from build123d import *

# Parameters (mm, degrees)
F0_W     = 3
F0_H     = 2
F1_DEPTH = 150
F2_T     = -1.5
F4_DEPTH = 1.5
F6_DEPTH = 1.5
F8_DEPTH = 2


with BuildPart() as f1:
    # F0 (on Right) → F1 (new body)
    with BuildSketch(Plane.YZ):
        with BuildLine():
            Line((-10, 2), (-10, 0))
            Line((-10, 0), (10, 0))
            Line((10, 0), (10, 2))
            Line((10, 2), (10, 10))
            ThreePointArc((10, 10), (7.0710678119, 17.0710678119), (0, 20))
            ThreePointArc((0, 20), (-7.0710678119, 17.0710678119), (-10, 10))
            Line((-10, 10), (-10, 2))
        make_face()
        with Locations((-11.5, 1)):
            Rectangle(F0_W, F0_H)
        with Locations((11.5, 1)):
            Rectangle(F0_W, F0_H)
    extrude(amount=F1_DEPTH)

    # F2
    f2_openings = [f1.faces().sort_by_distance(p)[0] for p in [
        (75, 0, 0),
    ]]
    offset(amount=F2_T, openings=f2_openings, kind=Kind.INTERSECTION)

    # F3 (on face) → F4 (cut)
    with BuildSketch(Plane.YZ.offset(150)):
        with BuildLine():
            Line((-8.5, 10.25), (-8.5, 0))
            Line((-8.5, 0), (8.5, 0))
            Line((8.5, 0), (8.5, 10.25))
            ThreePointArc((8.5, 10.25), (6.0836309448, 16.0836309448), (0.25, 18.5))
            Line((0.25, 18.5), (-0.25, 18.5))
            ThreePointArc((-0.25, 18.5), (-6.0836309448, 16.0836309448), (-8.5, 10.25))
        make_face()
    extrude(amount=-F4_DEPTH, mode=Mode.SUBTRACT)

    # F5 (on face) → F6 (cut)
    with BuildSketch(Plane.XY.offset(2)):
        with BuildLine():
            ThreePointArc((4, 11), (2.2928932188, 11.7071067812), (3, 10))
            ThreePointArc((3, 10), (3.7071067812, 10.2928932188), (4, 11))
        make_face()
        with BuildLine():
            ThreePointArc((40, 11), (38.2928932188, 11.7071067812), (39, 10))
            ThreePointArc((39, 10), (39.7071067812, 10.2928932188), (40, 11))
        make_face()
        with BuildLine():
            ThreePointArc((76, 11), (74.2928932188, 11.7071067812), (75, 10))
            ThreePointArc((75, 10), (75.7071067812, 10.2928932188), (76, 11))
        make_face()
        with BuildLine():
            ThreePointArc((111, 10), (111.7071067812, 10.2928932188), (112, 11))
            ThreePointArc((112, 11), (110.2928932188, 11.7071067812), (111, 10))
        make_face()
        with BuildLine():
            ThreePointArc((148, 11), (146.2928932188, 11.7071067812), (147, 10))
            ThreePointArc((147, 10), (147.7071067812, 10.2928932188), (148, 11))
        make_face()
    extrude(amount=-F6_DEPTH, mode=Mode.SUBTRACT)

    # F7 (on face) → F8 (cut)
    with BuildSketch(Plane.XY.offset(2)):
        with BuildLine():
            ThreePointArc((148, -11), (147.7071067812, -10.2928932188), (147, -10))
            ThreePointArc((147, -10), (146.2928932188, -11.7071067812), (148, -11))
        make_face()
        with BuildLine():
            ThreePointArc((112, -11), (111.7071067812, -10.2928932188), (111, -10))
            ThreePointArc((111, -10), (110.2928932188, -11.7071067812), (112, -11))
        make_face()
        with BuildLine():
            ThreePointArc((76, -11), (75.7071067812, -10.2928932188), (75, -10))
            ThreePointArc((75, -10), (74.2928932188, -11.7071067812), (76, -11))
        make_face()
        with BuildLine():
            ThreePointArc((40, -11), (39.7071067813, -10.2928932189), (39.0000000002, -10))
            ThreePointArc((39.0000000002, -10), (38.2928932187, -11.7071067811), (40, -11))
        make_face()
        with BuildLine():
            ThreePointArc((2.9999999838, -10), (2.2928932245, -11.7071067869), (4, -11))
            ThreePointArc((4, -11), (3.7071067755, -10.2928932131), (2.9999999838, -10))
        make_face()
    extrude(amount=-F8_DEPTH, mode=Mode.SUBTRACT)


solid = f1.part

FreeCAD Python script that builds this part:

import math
import FreeCAD as App
import Part
import Sketcher
from FreeCAD import Vector
Q = App.Units.Quantity


def faces_at(feature, points):
    """Names of the faces that lie closest to the given points."""
    faces = feature.Shape.Faces
    near = lambda p: min(range(len(faces)), key=lambda i: faces[i].distToShape(Part.Vertex(*p))[0])
    return sorted({f"Face{near(p) + 1}" for p in points})

doc = App.newDocument("Part")
body = doc.addObject("PartDesign::Body", "Body")

# Sketch on YZ plane
sketch1 = body.newObject("Sketcher::SketchObject", "Sketch")
sketch1.AttachmentSupport = (doc.getObject("YZ_Plane"), [""])
sketch1.MapMode = "FlatFace"
sketch1.addGeometry(Part.LineSegment(Vector(10, 2, 0), Vector(10, 10, 0)), False)
sketch1.addGeometry(Part.ArcOfCircle(Part.Circle(Vector(0, 10, 0), Vector(0, 0, 1), 10), math.radians(0), math.radians(90)), False)
sketch1.addGeometry(Part.ArcOfCircle(Part.Circle(Vector(0, 10, 0), Vector(0, 0, 1), 10), math.radians(90), math.radians(180)), False)
sketch1.addGeometry(Part.LineSegment(Vector(-10, 10, 0), Vector(-10, 2, 0)), False)
sketch1.addGeometry(Part.LineSegment(Vector(-10, 2, 0), Vector(-13, 2, 0)), False)
sketch1.addGeometry(Part.LineSegment(Vector(-13, 2, 0), Vector(-13, 0, 0)), False)
sketch1.addGeometry(Part.LineSegment(Vector(-13, 0, 0), Vector(13, 0, 0)), False)
sketch1.addGeometry(Part.LineSegment(Vector(13, 0, 0), Vector(13, 2, 0)), False)
sketch1.addGeometry(Part.LineSegment(Vector(13, 2, 0), Vector(10, 2, 0)), False)
sketch1.addConstraint(Sketcher.Constraint("Tangent", 0, 2, 1, 1))
sketch1.addConstraint(Sketcher.Constraint("Tangent", 1, 2, 2, 1))
sketch1.addConstraint(Sketcher.Constraint("Tangent", 2, 2, 3, 1))
sketch1.addConstraint(Sketcher.Constraint("Coincident", 3, 2, 4, 1))
sketch1.addConstraint(Sketcher.Constraint("Coincident", 4, 2, 5, 1))
sketch1.addConstraint(Sketcher.Constraint("Coincident", 5, 2, 6, 1))
sketch1.addConstraint(Sketcher.Constraint("Coincident", 6, 2, 7, 1))
sketch1.addConstraint(Sketcher.Constraint("Coincident", 7, 2, 8, 1))
sketch1.addConstraint(Sketcher.Constraint("Coincident", 8, 2, 0, 1))
sketch1.addConstraint(Sketcher.Constraint("Vertical", 0))
sketch1.addConstraint(Sketcher.Constraint("Vertical", 3))
sketch1.addConstraint(Sketcher.Constraint("Horizontal", 4))
sketch1.addConstraint(Sketcher.Constraint("Vertical", 5))
sketch1.addConstraint(Sketcher.Constraint("Horizontal", 6))
sketch1.addConstraint(Sketcher.Constraint("Vertical", 7))
sketch1.addConstraint(Sketcher.Constraint("Horizontal", 8))
sketch1.addConstraint(Sketcher.Constraint("Equal", 1, 2))
sketch1.addConstraint(Sketcher.Constraint("Symmetric", 5, 2, 6, 2, -1, 1))
sketch1.addConstraint(Sketcher.Constraint("Symmetric", 3, 2, 8, 2, -2))
sketch1.addConstraint(Sketcher.Constraint("PointOnObject", 1, 2, -2))
sketch1.addConstraint(Sketcher.Constraint("Radius", 1, Q("10 mm")))
sketch1.addConstraint(Sketcher.Constraint("DistanceX", 4, 2, 4, 1, Q("3 mm")))
sketch1.addConstraint(Sketcher.Constraint("DistanceY", 0, 1, 0, 2, Q("8 mm")))
sketch1.addConstraint(Sketcher.Constraint("DistanceY", 5, 2, 5, 1, Q("2 mm")))
pad1 = body.newObject("PartDesign::Pad", "Pad")
pad1.Profile = sketch1
pad1.Length = 150
doc.recompute()

thickness = body.newObject("PartDesign::Thickness", "Thickness")
thickness.Base = (pad1, faces_at(pad1, [(75, 0, 0)]))
thickness.Value = 1.5
thickness.Reversed = True
thickness.Join = "Intersection"

# Sketch on YZ plane
sketch2 = body.newObject("Sketcher::SketchObject", "Sketch001")
sketch2.AttachmentSupport = (doc.getObject("YZ_Plane"), [""])
sketch2.MapMode = "FlatFace"
sketch2.AttachmentOffset = App.Placement(Vector(0, 0, 150), App.Rotation())
sketch2.addGeometry(Part.LineSegment(Vector(-8.5, 10.25, 0), Vector(-8.5, 0, 0)), False)
sketch2.addGeometry(Part.LineSegment(Vector(-8.5, 0, 0), Vector(8.5, 0, 0)), False)
sketch2.addGeometry(Part.LineSegment(Vector(8.5, 0, 0), Vector(8.5, 10.25, 0)), False)
sketch2.addGeometry(Part.ArcOfCircle(Part.Circle(Vector(0.25, 10.25, 0), Vector(0, 0, 1), 8.25), math.radians(0), math.radians(90)), False)
sketch2.addGeometry(Part.LineSegment(Vector(0.25, 18.5, 0), Vector(-0.25, 18.5, 0)), False)
sketch2.addGeometry(Part.ArcOfCircle(Part.Circle(Vector(-0.25, 10.25, 0), Vector(0, 0, 1), 8.25), math.radians(90), math.radians(180)), False)
sketch2.addConstraint(Sketcher.Constraint("Coincident", 0, 2, 1, 1))
sketch2.addConstraint(Sketcher.Constraint("Coincident", 1, 2, 2, 1))
sketch2.addConstraint(Sketcher.Constraint("Tangent", 2, 2, 3, 1))
sketch2.addConstraint(Sketcher.Constraint("Tangent", 3, 2, 4, 1))
sketch2.addConstraint(Sketcher.Constraint("Tangent", 4, 2, 5, 1))
sketch2.addConstraint(Sketcher.Constraint("Tangent", 5, 2, 0, 1))
sketch2.addConstraint(Sketcher.Constraint("Vertical", 0))
sketch2.addConstraint(Sketcher.Constraint("Horizontal", 1))
sketch2.addConstraint(Sketcher.Constraint("Vertical", 2))
sketch2.addConstraint(Sketcher.Constraint("Horizontal", 4))
sketch2.addConstraint(Sketcher.Constraint("Equal", 3, 5))
sketch2.addConstraint(Sketcher.Constraint("Symmetric", 0, 2, 1, 2, -1, 1))
sketch2.addConstraint(Sketcher.Constraint("DistanceX", 1, 1, 1, 2, Q("17 mm")))
sketch2.addConstraint(Sketcher.Constraint("Radius", 3, Q("8.25 mm")))
sketch2.addConstraint(Sketcher.Constraint("DistanceY", 0, 2, 0, 1, Q("10.25 mm")))
pocket1 = body.newObject("PartDesign::Pocket", "Pocket")
pocket1.Profile = sketch2
pocket1.Length = 1.5

# Sketch on XY plane
sketch3 = body.newObject("Sketcher::SketchObject", "Sketch002")
sketch3.AttachmentSupport = (doc.getObject("XY_Plane"), [""])
sketch3.MapMode = "FlatFace"
sketch3.AttachmentOffset = App.Placement(Vector(0, 0, 2), App.Rotation())
sketch3.addGeometry(Part.ArcOfCircle(Part.Circle(Vector(3, 11, 0), Vector(0, 0, 1), 1), math.radians(0), math.radians(270)), False)
sketch3.addGeometry(Part.ArcOfCircle(Part.Circle(Vector(3, 11, 0), Vector(0, 0, 1), 1), math.radians(-90), math.radians(0)), False)
sketch3.addGeometry(Part.ArcOfCircle(Part.Circle(Vector(39, 11, 0), Vector(0, 0, 1), 1), math.radians(0), math.radians(270)), False)
sketch3.addGeometry(Part.ArcOfCircle(Part.Circle(Vector(39, 11, 0), Vector(0, 0, 1), 1), math.radians(-90), math.radians(0)), False)
sketch3.addGeometry(Part.ArcOfCircle(Part.Circle(Vector(75, 11, 0), Vector(0, 0, 1), 1), math.radians(0), math.radians(270)), False)
sketch3.addGeometry(Part.ArcOfCircle(Part.Circle(Vector(75, 11, 0), Vector(0, 0, 1), 1), math.radians(-90), math.radians(0)), False)
sketch3.addGeometry(Part.ArcOfCircle(Part.Circle(Vector(111, 11, 0), Vector(0, 0, 1), 1), math.radians(-90), math.radians(0)), False)
sketch3.addGeometry(Part.ArcOfCircle(Part.Circle(Vector(111, 11, 0), Vector(0, 0, 1), 1), math.radians(0), math.radians(270)), False)
sketch3.addGeometry(Part.ArcOfCircle(Part.Circle(Vector(147, 11, 0), Vector(0, 0, 1), 1), math.radians(0), math.radians(270)), False)
sketch3.addGeometry(Part.ArcOfCircle(Part.Circle(Vector(147, 11, 0), Vector(0, 0, 1), 1), math.radians(-90), math.radians(0)), False)
sketch3.addConstraint(Sketcher.Constraint("Tangent", 0, 1, 1, 2))
sketch3.addConstraint(Sketcher.Constraint("Coincident", 1, 1, 0, 2))
sketch3.addConstraint(Sketcher.Constraint("Tangent", 2, 1, 3, 2))
sketch3.addConstraint(Sketcher.Constraint("Coincident", 3, 1, 2, 2))
sketch3.addConstraint(Sketcher.Constraint("Tangent", 4, 1, 5, 2))
sketch3.addConstraint(Sketcher.Constraint("Coincident", 5, 1, 4, 2))
sketch3.addConstraint(Sketcher.Constraint("Tangent", 6, 1, 7, 2))
sketch3.addConstraint(Sketcher.Constraint("Coincident", 7, 1, 6, 2))
sketch3.addConstraint(Sketcher.Constraint("Tangent", 8, 1, 9, 2))
sketch3.addConstraint(Sketcher.Constraint("Coincident", 9, 1, 8, 2))
sketch3.addConstraint(Sketcher.Constraint("Equal", 1, 2))
sketch3.addConstraint(Sketcher.Constraint("Equal", 3, 4))
sketch3.addConstraint(Sketcher.Constraint("Equal", 5, 6))
sketch3.addConstraint(Sketcher.Constraint("Equal", 7, 8))
sketch3.addConstraint(Sketcher.Constraint("Horizontal", 1, 3, 2, 3))
sketch3.addConstraint(Sketcher.Constraint("Horizontal", 3, 3, 4, 3))
sketch3.addConstraint(Sketcher.Constraint("Horizontal", 5, 3, 6, 3))
sketch3.addConstraint(Sketcher.Constraint("Horizontal", 7, 3, 8, 3))
sketch3.addConstraint(Sketcher.Constraint("Horizontal", 9, 3, 0, 1))
sketch3.addConstraint(Sketcher.Constraint("Horizontal", 0, 1, 2, 1))
sketch3.addConstraint(Sketcher.Constraint("Horizontal", 2, 1, 4, 1))
sketch3.addConstraint(Sketcher.Constraint("Horizontal", 4, 1, 7, 1))
sketch3.addConstraint(Sketcher.Constraint("Horizontal", 7, 1, 8, 1))
sketch3.addConstraint(Sketcher.Constraint("Vertical", 0, 3, 1, 1))
sketch3.addConstraint(Sketcher.Constraint("Vertical", 2, 3, 3, 1))
sketch3.addConstraint(Sketcher.Constraint("Vertical", 4, 3, 5, 1))
sketch3.addConstraint(Sketcher.Constraint("Vertical", 7, 3, 6, 1))
sketch3.addConstraint(Sketcher.Constraint("Vertical", 8, 3, 9, 1))
sketch3.addConstraint(Sketcher.Constraint("Radius", 0, Q("1 mm")))
sketch3.addConstraint(Sketcher.Constraint("DistanceX", -1, 1, 0, 3, Q("3 mm")))
sketch3.addConstraint(Sketcher.Constraint("DistanceY", -1, 1, 0, 3, Q("11 mm")))
sketch3.addConstraint(Sketcher.Constraint("DistanceX", -1, 1, 2, 3, Q("39 mm")))
sketch3.addConstraint(Sketcher.Constraint("DistanceX", -1, 1, 4, 3, Q("75 mm")))
sketch3.addConstraint(Sketcher.Constraint("DistanceX", -1, 1, 6, 3, Q("111 mm")))
sketch3.addConstraint(Sketcher.Constraint("DistanceX", -1, 1, 8, 3, Q("147 mm")))
pocket2 = body.newObject("PartDesign::Pocket", "Pocket001")
pocket2.Profile = sketch3
pocket2.Length = 1.5

# Sketch on XY plane
sketch4 = body.newObject("Sketcher::SketchObject", "Sketch003")
sketch4.AttachmentSupport = (doc.getObject("XY_Plane"), [""])
sketch4.MapMode = "FlatFace"
sketch4.AttachmentOffset = App.Placement(Vector(0, 0, 2), App.Rotation())
sketch4.addGeometry(Part.ArcOfCircle(Part.Circle(Vector(147, -11, 0), Vector(0, 0, 1), 1), math.radians(0), math.radians(90)), False)
sketch4.addGeometry(Part.ArcOfCircle(Part.Circle(Vector(147, -11, 0), Vector(0, 0, 1), 1), math.radians(90), math.radians(360)), False)
sketch4.addGeometry(Part.ArcOfCircle(Part.Circle(Vector(111, -11, 0), Vector(0, 0, 1), 1), math.radians(0), math.radians(90)), False)
sketch4.addGeometry(Part.ArcOfCircle(Part.Circle(Vector(111, -11, 0), Vector(0, 0, 1), 1), math.radians(90), math.radians(360)), False)
sketch4.addGeometry(Part.ArcOfCircle(Part.Circle(Vector(75, -11, 0), Vector(0, 0, 1), 1), math.radians(0), math.radians(90)), False)
sketch4.addGeometry(Part.ArcOfCircle(Part.Circle(Vector(75, -11, 0), Vector(0, 0, 1), 1), math.radians(90), math.radians(360)), False)
sketch4.addGeometry(Part.ArcOfCircle(Part.Circle(Vector(39, -11, 0), Vector(0, 0, 1), 1), math.radians(0), math.radians(90)), False)
sketch4.addGeometry(Part.ArcOfCircle(Part.Circle(Vector(39, -11, 0), Vector(0, 0, 1), 1), math.radians(90), math.radians(360)), False)
sketch4.addGeometry(Part.ArcOfCircle(Part.Circle(Vector(3, -11, 0), Vector(0, 0, 1), 1), math.radians(90.000001), math.radians(360)), False)
sketch4.addGeometry(Part.ArcOfCircle(Part.Circle(Vector(3, -11, 0), Vector(0, 0, 1), 1), math.radians(0), math.radians(90.000001)), False)
sketch4.addConstraint(Sketcher.Constraint("Tangent", 0, 1, 1, 2))
sketch4.addConstraint(Sketcher.Constraint("Coincident", 1, 1, 0, 2))
sketch4.addConstraint(Sketcher.Constraint("Tangent", 2, 1, 3, 2))
sketch4.addConstraint(Sketcher.Constraint("Coincident", 3, 1, 2, 2))
sketch4.addConstraint(Sketcher.Constraint("Tangent", 4, 1, 5, 2))
sketch4.addConstraint(Sketcher.Constraint("Coincident", 5, 1, 4, 2))
sketch4.addConstraint(Sketcher.Constraint("Tangent", 6, 1, 7, 2))
sketch4.addConstraint(Sketcher.Constraint("Coincident", 7, 1, 6, 2))
sketch4.addConstraint(Sketcher.Constraint("Tangent", 8, 1, 9, 2))
sketch4.addConstraint(Sketcher.Constraint("Coincident", 9, 1, 8, 2))
sketch4.addConstraint(Sketcher.Constraint("Equal", 1, 2))
sketch4.addConstraint(Sketcher.Constraint("Equal", 3, 4))
sketch4.addConstraint(Sketcher.Constraint("Equal", 5, 6))
sketch4.addConstraint(Sketcher.Constraint("Equal", 7, 8))
sketch4.addConstraint(Sketcher.Constraint("Horizontal", 1, 3, 2, 3))
sketch4.addConstraint(Sketcher.Constraint("Horizontal", 3, 3, 4, 3))
sketch4.addConstraint(Sketcher.Constraint("Horizontal", 5, 3, 6, 3))
sketch4.addConstraint(Sketcher.Constraint("Horizontal", 7, 3, 8, 3))
sketch4.addConstraint(Sketcher.Constraint("Horizontal", 9, 3, 0, 1))
sketch4.addConstraint(Sketcher.Constraint("Horizontal", 0, 1, 2, 1))
sketch4.addConstraint(Sketcher.Constraint("Horizontal", 2, 1, 4, 1))
sketch4.addConstraint(Sketcher.Constraint("Horizontal", 4, 1, 6, 1))
sketch4.addConstraint(Sketcher.Constraint("Horizontal", 6, 1, 9, 1))
sketch4.addConstraint(Sketcher.Constraint("Vertical", 0, 3, 1, 1))
sketch4.addConstraint(Sketcher.Constraint("Vertical", 2, 3, 3, 1))
sketch4.addConstraint(Sketcher.Constraint("Vertical", 4, 3, 5, 1))
sketch4.addConstraint(Sketcher.Constraint("Vertical", 6, 3, 7, 1))
sketch4.addConstraint(Sketcher.Constraint("Vertical", 9, 3, 8, 1))
sketch4.addConstraint(Sketcher.Constraint("Radius", 0, Q("1 mm")))
sketch4.addConstraint(Sketcher.Constraint("DistanceX", -1, 1, 0, 3, Q("147 mm")))
sketch4.addConstraint(Sketcher.Constraint("DistanceY", 0, 3, -1, 1, Q("11 mm")))
sketch4.addConstraint(Sketcher.Constraint("DistanceX", -1, 1, 2, 3, Q("111 mm")))
sketch4.addConstraint(Sketcher.Constraint("DistanceX", -1, 1, 4, 3, Q("75 mm")))
sketch4.addConstraint(Sketcher.Constraint("DistanceX", -1, 1, 6, 3, Q("39 mm")))
sketch4.addConstraint(Sketcher.Constraint("DistanceX", -1, 1, 8, 3, Q("3 mm")))
pocket3 = body.newObject("PartDesign::Pocket", "Pocket002")
pocket3.Profile = sketch4
pocket3.Length = 2

doc.recompute()
